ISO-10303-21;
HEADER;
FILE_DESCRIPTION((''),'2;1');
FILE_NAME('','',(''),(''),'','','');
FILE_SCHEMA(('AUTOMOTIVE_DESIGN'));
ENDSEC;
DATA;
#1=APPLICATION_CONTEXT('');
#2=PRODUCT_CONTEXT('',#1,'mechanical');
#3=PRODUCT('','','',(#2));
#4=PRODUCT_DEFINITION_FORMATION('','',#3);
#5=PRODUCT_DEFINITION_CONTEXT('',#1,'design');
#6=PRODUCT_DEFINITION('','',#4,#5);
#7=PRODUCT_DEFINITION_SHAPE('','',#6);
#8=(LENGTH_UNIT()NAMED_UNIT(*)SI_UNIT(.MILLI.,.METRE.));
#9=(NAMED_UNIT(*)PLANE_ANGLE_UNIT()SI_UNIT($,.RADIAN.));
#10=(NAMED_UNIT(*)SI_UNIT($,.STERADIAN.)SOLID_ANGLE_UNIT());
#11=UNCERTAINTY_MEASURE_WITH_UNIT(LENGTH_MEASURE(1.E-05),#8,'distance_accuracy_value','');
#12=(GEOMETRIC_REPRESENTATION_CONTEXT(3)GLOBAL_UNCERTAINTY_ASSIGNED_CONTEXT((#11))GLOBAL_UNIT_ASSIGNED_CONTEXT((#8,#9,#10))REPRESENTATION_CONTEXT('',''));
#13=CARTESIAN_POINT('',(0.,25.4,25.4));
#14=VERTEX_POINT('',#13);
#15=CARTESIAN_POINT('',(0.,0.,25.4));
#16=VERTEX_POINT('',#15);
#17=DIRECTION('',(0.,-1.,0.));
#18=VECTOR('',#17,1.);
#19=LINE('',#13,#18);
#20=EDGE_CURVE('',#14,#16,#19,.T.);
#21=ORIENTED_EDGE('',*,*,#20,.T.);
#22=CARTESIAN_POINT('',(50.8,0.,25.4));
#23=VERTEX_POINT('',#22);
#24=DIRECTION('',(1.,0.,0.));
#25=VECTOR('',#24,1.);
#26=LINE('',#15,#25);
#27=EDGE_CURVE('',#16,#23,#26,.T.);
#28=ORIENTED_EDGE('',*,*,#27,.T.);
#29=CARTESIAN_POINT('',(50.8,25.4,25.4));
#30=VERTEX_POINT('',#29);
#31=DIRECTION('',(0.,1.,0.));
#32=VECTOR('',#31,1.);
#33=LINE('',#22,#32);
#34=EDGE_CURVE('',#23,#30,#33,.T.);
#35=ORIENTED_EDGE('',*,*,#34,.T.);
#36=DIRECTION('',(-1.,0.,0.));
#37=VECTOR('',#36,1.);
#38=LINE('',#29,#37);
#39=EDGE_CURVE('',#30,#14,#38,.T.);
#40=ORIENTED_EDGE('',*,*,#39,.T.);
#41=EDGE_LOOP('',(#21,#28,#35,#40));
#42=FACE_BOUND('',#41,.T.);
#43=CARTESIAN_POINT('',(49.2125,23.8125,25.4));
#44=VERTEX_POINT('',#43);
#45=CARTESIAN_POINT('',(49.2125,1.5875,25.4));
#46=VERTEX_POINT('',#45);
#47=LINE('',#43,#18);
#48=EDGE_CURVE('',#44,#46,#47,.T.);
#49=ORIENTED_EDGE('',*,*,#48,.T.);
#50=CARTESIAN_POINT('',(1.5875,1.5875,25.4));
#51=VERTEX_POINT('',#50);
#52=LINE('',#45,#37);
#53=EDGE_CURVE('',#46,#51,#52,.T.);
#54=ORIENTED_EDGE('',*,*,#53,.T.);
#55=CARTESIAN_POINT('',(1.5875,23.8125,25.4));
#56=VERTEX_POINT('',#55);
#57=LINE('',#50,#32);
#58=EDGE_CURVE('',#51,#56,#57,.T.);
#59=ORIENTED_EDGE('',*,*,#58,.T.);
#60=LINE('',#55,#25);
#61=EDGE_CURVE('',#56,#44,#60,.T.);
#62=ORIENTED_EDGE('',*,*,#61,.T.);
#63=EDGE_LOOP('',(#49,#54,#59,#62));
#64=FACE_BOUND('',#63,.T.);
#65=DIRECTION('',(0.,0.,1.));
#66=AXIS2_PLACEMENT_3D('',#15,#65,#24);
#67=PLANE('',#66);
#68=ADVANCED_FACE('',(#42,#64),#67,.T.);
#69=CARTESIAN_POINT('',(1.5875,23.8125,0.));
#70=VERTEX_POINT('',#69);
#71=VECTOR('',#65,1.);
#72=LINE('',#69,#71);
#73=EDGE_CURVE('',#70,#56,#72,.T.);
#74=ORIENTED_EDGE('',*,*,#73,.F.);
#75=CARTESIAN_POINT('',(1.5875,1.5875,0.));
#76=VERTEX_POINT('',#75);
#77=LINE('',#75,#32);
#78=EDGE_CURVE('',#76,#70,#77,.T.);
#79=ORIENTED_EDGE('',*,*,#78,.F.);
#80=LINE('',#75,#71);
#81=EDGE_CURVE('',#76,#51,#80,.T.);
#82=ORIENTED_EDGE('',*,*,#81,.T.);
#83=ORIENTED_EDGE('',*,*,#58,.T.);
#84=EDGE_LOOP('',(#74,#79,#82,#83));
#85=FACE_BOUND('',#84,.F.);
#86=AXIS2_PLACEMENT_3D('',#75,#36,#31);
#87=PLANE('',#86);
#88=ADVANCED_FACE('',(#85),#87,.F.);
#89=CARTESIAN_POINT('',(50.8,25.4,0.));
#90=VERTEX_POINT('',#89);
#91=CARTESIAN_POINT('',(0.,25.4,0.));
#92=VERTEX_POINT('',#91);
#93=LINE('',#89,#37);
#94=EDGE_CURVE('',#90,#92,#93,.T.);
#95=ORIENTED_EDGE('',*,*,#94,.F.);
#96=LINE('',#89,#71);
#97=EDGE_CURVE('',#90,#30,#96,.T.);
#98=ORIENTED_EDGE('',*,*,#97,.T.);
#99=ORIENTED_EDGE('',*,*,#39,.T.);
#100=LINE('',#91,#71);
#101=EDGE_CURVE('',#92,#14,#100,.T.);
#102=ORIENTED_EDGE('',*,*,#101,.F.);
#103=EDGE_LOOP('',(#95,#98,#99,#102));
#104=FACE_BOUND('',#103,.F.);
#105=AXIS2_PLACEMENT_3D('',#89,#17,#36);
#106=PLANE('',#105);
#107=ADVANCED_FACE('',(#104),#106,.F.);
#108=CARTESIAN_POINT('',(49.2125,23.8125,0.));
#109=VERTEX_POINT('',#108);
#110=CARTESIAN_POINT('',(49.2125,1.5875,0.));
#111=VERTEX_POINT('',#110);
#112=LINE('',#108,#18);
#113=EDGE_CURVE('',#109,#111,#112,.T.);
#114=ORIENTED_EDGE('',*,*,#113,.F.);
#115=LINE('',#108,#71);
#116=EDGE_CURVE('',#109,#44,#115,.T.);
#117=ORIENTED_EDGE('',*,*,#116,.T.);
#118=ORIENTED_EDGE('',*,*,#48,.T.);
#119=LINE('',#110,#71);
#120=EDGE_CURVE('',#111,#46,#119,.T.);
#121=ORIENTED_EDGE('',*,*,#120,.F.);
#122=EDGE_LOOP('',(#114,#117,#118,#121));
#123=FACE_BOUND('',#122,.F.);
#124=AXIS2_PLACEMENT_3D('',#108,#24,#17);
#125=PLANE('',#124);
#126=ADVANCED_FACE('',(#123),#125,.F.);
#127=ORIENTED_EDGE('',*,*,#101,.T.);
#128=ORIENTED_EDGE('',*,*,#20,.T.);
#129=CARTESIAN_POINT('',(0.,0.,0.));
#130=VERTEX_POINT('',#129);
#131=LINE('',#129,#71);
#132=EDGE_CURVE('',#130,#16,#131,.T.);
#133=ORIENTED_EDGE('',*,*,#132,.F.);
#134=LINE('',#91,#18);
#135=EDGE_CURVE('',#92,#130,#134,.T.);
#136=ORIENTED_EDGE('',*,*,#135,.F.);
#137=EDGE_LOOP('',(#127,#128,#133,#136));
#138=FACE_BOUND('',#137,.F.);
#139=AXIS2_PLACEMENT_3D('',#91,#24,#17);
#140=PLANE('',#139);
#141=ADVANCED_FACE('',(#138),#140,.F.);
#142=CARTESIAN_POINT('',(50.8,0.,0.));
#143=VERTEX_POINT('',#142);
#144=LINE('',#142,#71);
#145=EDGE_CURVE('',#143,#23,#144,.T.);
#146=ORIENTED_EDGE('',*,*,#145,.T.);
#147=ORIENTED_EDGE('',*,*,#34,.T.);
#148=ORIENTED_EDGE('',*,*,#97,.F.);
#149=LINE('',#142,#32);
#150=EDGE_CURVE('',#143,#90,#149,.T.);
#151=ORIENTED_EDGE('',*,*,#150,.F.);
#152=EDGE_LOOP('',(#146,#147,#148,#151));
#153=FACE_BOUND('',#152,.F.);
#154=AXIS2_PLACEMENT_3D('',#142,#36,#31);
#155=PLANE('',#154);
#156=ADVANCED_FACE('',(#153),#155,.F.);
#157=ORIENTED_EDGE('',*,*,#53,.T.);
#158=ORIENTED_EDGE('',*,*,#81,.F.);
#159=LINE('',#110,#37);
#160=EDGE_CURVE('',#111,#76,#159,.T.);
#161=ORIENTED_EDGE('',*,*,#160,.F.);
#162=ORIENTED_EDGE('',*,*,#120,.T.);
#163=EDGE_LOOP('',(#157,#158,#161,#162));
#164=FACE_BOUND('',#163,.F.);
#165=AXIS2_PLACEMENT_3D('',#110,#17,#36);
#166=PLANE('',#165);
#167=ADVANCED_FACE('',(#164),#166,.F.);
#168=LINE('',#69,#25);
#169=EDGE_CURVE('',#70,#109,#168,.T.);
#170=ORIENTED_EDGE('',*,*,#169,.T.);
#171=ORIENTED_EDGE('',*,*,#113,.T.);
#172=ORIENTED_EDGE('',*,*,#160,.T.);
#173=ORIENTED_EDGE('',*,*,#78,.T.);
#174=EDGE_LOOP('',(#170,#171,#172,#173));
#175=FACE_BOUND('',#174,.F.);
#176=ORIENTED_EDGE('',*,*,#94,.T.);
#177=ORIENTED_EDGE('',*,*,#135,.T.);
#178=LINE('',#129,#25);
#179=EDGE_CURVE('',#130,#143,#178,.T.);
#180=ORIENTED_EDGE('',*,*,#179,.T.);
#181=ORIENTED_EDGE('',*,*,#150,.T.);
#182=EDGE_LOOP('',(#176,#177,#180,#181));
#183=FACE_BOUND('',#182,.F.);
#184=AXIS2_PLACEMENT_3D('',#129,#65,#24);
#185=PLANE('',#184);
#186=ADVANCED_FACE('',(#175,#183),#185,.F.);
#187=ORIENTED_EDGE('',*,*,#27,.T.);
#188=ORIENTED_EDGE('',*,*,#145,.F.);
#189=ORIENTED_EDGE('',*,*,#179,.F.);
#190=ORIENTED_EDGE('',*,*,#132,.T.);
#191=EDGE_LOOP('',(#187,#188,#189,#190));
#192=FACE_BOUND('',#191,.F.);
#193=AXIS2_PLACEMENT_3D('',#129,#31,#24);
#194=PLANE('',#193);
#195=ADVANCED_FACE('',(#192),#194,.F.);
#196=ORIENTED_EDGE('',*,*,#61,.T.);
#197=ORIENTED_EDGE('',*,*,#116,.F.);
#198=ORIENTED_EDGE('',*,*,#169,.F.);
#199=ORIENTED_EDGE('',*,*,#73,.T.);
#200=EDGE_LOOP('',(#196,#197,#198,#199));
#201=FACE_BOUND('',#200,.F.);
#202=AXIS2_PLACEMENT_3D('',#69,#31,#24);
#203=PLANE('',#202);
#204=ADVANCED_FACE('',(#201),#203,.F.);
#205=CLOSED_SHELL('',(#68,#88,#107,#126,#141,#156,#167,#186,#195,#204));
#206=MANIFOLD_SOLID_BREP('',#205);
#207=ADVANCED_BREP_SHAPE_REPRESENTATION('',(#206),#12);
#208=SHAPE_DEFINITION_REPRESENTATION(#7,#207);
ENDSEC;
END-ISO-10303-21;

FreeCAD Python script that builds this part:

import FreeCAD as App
import Part
import Sketcher
Q = App.Units.Quantity


def add_polygon(sketch, points):
    """Adds a closed chain of lines whose ends are joined by coincident constraints."""
    first, n = sketch.GeometryCount, len(points)
    for a, b in zip(points, points[1:] + points[:1]):
        sketch.addGeometry(Part.LineSegment(App.Vector(*a, 0), App.Vector(*b, 0)), False)
    for i in range(n):
        sketch.addConstraint(Sketcher.Constraint("Coincident", first + i, 2, first + (i + 1) % n, 1))

doc = App.newDocument("Part")
body = doc.addObject("PartDesign::Body", "Body")

# Sketch on XY plane
sketch1 = body.newObject("Sketcher::SketchObject", "Sketch")
sketch1.AttachmentSupport = (doc.getObject("XY_Plane"), [""])
sketch1.MapMode = "FlatFace"
add_polygon(sketch1, [(0, 25), (0, 0), (51, 0), (51, 25)])  # lines 0-3
add_polygon(sketch1, [(2, 2), (2, 24), (49, 24), (49, 2)])  # lines 4-7
sketch1.addConstraint([
    Sketcher.Constraint("Vertical", 0),
    Sketcher.Constraint("Horizontal", 1),
    Sketcher.Constraint("Vertical", 2),
    Sketcher.Constraint("Horizontal", 3),
    Sketcher.Constraint("Vertical", 4),
    Sketcher.Constraint("Horizontal", 5),
    Sketcher.Constraint("Vertical", 6),
    Sketcher.Constraint("Horizontal", 7),
    Sketcher.Constraint("Coincident", 0, 2, -1, 1),
    Sketcher.Constraint("DistanceX", 1, 1, 1, 2, Q("2 in")),
    Sketcher.Constraint("DistanceY", 0, 2, 0, 1, Q("1 in")),
    Sketcher.Constraint("DistanceX", -1, 1, 4, 2, Q("0.0625 in")),
    Sketcher.Constraint("DistanceY", -1, 1, 6, 2, Q("0.0625 in")),
    Sketcher.Constraint("DistanceY", 4, 2, 3, 2, Q("0.0625 in")),
    Sketcher.Constraint("DistanceX", 5, 2, 2, 2, Q("0.0625 in")),
])
pad1 = body.newObject("PartDesign::Pad", "Pad")
pad1.Profile = sketch1
pad1.Length = Q("1 in")

doc.recompute()
